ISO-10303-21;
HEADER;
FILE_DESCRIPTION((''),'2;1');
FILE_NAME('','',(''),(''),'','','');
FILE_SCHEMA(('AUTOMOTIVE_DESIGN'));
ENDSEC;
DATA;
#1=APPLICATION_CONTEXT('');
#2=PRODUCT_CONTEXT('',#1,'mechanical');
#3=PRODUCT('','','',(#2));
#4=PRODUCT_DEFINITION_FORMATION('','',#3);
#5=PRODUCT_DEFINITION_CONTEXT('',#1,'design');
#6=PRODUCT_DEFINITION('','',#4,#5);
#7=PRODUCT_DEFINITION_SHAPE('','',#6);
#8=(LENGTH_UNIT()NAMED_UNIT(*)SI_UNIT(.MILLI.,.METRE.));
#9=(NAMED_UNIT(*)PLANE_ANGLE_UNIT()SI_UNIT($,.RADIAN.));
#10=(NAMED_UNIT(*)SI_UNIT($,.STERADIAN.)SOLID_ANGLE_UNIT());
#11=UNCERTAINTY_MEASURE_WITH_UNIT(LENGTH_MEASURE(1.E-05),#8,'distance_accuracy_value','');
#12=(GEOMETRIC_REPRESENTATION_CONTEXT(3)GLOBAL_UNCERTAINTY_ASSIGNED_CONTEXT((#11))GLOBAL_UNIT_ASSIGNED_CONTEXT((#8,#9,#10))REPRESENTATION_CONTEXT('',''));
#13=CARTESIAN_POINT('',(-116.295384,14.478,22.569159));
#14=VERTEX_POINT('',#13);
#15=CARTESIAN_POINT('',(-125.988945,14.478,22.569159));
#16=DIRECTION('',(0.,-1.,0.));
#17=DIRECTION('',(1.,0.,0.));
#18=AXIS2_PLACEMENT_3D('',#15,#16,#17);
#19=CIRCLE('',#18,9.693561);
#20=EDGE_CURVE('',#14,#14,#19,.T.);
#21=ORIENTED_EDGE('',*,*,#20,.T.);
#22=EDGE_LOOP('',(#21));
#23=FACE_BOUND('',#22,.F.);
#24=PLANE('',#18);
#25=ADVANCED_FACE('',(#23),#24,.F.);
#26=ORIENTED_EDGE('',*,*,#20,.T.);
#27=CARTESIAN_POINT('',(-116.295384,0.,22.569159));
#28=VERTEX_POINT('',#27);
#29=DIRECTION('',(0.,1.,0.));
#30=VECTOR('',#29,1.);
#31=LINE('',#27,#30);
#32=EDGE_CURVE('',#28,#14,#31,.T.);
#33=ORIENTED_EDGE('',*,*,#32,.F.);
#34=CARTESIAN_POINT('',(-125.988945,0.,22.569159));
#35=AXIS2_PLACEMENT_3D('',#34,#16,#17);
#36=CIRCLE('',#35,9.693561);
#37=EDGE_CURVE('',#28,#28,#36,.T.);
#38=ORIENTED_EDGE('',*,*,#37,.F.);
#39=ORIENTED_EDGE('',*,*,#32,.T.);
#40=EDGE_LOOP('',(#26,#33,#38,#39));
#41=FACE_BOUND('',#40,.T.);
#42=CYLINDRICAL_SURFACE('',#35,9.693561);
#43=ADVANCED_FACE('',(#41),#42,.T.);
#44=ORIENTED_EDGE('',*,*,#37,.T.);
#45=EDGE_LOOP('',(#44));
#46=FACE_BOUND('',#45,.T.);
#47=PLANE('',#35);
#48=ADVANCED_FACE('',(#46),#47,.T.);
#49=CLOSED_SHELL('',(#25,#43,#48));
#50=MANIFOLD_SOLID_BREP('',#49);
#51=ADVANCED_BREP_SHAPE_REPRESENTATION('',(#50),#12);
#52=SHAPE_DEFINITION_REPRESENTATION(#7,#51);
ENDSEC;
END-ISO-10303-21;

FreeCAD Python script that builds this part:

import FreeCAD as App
import Part
import Sketcher
from FreeCAD import Vector
Q = App.Units.Quantity

doc = App.newDocument("Part")
body = doc.addObject("PartDesign::Body", "Body")

sketch1 = body.newObject("Sketcher::SketchObject", "Sketch")
sketch1.AttachmentSupport = (doc.getObject("XZ_Plane"), [""])
sketch1.MapMode = "FlatFace"
sketch1.addGeometry(Part.Circle(Vector(-126, 23, 0), Vector(0, 0, 1), 10), False)
sketch1.addConstraint(Sketcher.Constraint("Diameter", 0, 19.387122))
sketch1.addConstraint(Sketcher.Constraint("DistanceY", -1, 1, 0, 3, 22.569159))
sketch1.addConstraint(Sketcher.Constraint("DistanceX", 0, 3, -1, 1, 125.988945))
pad1 = body.newObject("PartDesign::Pad", "Pad")
pad1.Profile = sketch1
pad1.Length = Q("0.35 in")
pad1.Reversed = True

sketch2 = body.newObject("Sketcher::SketchObject", "Sketch001")
sketch2.AttachmentSupport = (doc.getObject("XZ_Plane"), [""])
sketch2.MapMode = "FlatFace"
sketch2.addGeometry(Part.Circle(Vector(-126, 23, 0), Vector(0, 0, 1), 10), False)
sketch2.addConstraint(Sketcher.Constraint("Diameter", 0, 19.387122))
sketch2.addConstraint(Sketcher.Constraint("DistanceY", -1, 1, 0, 3, 22.569159))
sketch2.addConstraint(Sketcher.Constraint("DistanceX", 0, 3, -1, 1, 125.988945))
pad2 = body.newObject("PartDesign::Pad", "Pad001")
pad2.Profile = sketch2
pad2.Length = Q("0.57 in")
pad2.Reversed = True

doc.recompute()
